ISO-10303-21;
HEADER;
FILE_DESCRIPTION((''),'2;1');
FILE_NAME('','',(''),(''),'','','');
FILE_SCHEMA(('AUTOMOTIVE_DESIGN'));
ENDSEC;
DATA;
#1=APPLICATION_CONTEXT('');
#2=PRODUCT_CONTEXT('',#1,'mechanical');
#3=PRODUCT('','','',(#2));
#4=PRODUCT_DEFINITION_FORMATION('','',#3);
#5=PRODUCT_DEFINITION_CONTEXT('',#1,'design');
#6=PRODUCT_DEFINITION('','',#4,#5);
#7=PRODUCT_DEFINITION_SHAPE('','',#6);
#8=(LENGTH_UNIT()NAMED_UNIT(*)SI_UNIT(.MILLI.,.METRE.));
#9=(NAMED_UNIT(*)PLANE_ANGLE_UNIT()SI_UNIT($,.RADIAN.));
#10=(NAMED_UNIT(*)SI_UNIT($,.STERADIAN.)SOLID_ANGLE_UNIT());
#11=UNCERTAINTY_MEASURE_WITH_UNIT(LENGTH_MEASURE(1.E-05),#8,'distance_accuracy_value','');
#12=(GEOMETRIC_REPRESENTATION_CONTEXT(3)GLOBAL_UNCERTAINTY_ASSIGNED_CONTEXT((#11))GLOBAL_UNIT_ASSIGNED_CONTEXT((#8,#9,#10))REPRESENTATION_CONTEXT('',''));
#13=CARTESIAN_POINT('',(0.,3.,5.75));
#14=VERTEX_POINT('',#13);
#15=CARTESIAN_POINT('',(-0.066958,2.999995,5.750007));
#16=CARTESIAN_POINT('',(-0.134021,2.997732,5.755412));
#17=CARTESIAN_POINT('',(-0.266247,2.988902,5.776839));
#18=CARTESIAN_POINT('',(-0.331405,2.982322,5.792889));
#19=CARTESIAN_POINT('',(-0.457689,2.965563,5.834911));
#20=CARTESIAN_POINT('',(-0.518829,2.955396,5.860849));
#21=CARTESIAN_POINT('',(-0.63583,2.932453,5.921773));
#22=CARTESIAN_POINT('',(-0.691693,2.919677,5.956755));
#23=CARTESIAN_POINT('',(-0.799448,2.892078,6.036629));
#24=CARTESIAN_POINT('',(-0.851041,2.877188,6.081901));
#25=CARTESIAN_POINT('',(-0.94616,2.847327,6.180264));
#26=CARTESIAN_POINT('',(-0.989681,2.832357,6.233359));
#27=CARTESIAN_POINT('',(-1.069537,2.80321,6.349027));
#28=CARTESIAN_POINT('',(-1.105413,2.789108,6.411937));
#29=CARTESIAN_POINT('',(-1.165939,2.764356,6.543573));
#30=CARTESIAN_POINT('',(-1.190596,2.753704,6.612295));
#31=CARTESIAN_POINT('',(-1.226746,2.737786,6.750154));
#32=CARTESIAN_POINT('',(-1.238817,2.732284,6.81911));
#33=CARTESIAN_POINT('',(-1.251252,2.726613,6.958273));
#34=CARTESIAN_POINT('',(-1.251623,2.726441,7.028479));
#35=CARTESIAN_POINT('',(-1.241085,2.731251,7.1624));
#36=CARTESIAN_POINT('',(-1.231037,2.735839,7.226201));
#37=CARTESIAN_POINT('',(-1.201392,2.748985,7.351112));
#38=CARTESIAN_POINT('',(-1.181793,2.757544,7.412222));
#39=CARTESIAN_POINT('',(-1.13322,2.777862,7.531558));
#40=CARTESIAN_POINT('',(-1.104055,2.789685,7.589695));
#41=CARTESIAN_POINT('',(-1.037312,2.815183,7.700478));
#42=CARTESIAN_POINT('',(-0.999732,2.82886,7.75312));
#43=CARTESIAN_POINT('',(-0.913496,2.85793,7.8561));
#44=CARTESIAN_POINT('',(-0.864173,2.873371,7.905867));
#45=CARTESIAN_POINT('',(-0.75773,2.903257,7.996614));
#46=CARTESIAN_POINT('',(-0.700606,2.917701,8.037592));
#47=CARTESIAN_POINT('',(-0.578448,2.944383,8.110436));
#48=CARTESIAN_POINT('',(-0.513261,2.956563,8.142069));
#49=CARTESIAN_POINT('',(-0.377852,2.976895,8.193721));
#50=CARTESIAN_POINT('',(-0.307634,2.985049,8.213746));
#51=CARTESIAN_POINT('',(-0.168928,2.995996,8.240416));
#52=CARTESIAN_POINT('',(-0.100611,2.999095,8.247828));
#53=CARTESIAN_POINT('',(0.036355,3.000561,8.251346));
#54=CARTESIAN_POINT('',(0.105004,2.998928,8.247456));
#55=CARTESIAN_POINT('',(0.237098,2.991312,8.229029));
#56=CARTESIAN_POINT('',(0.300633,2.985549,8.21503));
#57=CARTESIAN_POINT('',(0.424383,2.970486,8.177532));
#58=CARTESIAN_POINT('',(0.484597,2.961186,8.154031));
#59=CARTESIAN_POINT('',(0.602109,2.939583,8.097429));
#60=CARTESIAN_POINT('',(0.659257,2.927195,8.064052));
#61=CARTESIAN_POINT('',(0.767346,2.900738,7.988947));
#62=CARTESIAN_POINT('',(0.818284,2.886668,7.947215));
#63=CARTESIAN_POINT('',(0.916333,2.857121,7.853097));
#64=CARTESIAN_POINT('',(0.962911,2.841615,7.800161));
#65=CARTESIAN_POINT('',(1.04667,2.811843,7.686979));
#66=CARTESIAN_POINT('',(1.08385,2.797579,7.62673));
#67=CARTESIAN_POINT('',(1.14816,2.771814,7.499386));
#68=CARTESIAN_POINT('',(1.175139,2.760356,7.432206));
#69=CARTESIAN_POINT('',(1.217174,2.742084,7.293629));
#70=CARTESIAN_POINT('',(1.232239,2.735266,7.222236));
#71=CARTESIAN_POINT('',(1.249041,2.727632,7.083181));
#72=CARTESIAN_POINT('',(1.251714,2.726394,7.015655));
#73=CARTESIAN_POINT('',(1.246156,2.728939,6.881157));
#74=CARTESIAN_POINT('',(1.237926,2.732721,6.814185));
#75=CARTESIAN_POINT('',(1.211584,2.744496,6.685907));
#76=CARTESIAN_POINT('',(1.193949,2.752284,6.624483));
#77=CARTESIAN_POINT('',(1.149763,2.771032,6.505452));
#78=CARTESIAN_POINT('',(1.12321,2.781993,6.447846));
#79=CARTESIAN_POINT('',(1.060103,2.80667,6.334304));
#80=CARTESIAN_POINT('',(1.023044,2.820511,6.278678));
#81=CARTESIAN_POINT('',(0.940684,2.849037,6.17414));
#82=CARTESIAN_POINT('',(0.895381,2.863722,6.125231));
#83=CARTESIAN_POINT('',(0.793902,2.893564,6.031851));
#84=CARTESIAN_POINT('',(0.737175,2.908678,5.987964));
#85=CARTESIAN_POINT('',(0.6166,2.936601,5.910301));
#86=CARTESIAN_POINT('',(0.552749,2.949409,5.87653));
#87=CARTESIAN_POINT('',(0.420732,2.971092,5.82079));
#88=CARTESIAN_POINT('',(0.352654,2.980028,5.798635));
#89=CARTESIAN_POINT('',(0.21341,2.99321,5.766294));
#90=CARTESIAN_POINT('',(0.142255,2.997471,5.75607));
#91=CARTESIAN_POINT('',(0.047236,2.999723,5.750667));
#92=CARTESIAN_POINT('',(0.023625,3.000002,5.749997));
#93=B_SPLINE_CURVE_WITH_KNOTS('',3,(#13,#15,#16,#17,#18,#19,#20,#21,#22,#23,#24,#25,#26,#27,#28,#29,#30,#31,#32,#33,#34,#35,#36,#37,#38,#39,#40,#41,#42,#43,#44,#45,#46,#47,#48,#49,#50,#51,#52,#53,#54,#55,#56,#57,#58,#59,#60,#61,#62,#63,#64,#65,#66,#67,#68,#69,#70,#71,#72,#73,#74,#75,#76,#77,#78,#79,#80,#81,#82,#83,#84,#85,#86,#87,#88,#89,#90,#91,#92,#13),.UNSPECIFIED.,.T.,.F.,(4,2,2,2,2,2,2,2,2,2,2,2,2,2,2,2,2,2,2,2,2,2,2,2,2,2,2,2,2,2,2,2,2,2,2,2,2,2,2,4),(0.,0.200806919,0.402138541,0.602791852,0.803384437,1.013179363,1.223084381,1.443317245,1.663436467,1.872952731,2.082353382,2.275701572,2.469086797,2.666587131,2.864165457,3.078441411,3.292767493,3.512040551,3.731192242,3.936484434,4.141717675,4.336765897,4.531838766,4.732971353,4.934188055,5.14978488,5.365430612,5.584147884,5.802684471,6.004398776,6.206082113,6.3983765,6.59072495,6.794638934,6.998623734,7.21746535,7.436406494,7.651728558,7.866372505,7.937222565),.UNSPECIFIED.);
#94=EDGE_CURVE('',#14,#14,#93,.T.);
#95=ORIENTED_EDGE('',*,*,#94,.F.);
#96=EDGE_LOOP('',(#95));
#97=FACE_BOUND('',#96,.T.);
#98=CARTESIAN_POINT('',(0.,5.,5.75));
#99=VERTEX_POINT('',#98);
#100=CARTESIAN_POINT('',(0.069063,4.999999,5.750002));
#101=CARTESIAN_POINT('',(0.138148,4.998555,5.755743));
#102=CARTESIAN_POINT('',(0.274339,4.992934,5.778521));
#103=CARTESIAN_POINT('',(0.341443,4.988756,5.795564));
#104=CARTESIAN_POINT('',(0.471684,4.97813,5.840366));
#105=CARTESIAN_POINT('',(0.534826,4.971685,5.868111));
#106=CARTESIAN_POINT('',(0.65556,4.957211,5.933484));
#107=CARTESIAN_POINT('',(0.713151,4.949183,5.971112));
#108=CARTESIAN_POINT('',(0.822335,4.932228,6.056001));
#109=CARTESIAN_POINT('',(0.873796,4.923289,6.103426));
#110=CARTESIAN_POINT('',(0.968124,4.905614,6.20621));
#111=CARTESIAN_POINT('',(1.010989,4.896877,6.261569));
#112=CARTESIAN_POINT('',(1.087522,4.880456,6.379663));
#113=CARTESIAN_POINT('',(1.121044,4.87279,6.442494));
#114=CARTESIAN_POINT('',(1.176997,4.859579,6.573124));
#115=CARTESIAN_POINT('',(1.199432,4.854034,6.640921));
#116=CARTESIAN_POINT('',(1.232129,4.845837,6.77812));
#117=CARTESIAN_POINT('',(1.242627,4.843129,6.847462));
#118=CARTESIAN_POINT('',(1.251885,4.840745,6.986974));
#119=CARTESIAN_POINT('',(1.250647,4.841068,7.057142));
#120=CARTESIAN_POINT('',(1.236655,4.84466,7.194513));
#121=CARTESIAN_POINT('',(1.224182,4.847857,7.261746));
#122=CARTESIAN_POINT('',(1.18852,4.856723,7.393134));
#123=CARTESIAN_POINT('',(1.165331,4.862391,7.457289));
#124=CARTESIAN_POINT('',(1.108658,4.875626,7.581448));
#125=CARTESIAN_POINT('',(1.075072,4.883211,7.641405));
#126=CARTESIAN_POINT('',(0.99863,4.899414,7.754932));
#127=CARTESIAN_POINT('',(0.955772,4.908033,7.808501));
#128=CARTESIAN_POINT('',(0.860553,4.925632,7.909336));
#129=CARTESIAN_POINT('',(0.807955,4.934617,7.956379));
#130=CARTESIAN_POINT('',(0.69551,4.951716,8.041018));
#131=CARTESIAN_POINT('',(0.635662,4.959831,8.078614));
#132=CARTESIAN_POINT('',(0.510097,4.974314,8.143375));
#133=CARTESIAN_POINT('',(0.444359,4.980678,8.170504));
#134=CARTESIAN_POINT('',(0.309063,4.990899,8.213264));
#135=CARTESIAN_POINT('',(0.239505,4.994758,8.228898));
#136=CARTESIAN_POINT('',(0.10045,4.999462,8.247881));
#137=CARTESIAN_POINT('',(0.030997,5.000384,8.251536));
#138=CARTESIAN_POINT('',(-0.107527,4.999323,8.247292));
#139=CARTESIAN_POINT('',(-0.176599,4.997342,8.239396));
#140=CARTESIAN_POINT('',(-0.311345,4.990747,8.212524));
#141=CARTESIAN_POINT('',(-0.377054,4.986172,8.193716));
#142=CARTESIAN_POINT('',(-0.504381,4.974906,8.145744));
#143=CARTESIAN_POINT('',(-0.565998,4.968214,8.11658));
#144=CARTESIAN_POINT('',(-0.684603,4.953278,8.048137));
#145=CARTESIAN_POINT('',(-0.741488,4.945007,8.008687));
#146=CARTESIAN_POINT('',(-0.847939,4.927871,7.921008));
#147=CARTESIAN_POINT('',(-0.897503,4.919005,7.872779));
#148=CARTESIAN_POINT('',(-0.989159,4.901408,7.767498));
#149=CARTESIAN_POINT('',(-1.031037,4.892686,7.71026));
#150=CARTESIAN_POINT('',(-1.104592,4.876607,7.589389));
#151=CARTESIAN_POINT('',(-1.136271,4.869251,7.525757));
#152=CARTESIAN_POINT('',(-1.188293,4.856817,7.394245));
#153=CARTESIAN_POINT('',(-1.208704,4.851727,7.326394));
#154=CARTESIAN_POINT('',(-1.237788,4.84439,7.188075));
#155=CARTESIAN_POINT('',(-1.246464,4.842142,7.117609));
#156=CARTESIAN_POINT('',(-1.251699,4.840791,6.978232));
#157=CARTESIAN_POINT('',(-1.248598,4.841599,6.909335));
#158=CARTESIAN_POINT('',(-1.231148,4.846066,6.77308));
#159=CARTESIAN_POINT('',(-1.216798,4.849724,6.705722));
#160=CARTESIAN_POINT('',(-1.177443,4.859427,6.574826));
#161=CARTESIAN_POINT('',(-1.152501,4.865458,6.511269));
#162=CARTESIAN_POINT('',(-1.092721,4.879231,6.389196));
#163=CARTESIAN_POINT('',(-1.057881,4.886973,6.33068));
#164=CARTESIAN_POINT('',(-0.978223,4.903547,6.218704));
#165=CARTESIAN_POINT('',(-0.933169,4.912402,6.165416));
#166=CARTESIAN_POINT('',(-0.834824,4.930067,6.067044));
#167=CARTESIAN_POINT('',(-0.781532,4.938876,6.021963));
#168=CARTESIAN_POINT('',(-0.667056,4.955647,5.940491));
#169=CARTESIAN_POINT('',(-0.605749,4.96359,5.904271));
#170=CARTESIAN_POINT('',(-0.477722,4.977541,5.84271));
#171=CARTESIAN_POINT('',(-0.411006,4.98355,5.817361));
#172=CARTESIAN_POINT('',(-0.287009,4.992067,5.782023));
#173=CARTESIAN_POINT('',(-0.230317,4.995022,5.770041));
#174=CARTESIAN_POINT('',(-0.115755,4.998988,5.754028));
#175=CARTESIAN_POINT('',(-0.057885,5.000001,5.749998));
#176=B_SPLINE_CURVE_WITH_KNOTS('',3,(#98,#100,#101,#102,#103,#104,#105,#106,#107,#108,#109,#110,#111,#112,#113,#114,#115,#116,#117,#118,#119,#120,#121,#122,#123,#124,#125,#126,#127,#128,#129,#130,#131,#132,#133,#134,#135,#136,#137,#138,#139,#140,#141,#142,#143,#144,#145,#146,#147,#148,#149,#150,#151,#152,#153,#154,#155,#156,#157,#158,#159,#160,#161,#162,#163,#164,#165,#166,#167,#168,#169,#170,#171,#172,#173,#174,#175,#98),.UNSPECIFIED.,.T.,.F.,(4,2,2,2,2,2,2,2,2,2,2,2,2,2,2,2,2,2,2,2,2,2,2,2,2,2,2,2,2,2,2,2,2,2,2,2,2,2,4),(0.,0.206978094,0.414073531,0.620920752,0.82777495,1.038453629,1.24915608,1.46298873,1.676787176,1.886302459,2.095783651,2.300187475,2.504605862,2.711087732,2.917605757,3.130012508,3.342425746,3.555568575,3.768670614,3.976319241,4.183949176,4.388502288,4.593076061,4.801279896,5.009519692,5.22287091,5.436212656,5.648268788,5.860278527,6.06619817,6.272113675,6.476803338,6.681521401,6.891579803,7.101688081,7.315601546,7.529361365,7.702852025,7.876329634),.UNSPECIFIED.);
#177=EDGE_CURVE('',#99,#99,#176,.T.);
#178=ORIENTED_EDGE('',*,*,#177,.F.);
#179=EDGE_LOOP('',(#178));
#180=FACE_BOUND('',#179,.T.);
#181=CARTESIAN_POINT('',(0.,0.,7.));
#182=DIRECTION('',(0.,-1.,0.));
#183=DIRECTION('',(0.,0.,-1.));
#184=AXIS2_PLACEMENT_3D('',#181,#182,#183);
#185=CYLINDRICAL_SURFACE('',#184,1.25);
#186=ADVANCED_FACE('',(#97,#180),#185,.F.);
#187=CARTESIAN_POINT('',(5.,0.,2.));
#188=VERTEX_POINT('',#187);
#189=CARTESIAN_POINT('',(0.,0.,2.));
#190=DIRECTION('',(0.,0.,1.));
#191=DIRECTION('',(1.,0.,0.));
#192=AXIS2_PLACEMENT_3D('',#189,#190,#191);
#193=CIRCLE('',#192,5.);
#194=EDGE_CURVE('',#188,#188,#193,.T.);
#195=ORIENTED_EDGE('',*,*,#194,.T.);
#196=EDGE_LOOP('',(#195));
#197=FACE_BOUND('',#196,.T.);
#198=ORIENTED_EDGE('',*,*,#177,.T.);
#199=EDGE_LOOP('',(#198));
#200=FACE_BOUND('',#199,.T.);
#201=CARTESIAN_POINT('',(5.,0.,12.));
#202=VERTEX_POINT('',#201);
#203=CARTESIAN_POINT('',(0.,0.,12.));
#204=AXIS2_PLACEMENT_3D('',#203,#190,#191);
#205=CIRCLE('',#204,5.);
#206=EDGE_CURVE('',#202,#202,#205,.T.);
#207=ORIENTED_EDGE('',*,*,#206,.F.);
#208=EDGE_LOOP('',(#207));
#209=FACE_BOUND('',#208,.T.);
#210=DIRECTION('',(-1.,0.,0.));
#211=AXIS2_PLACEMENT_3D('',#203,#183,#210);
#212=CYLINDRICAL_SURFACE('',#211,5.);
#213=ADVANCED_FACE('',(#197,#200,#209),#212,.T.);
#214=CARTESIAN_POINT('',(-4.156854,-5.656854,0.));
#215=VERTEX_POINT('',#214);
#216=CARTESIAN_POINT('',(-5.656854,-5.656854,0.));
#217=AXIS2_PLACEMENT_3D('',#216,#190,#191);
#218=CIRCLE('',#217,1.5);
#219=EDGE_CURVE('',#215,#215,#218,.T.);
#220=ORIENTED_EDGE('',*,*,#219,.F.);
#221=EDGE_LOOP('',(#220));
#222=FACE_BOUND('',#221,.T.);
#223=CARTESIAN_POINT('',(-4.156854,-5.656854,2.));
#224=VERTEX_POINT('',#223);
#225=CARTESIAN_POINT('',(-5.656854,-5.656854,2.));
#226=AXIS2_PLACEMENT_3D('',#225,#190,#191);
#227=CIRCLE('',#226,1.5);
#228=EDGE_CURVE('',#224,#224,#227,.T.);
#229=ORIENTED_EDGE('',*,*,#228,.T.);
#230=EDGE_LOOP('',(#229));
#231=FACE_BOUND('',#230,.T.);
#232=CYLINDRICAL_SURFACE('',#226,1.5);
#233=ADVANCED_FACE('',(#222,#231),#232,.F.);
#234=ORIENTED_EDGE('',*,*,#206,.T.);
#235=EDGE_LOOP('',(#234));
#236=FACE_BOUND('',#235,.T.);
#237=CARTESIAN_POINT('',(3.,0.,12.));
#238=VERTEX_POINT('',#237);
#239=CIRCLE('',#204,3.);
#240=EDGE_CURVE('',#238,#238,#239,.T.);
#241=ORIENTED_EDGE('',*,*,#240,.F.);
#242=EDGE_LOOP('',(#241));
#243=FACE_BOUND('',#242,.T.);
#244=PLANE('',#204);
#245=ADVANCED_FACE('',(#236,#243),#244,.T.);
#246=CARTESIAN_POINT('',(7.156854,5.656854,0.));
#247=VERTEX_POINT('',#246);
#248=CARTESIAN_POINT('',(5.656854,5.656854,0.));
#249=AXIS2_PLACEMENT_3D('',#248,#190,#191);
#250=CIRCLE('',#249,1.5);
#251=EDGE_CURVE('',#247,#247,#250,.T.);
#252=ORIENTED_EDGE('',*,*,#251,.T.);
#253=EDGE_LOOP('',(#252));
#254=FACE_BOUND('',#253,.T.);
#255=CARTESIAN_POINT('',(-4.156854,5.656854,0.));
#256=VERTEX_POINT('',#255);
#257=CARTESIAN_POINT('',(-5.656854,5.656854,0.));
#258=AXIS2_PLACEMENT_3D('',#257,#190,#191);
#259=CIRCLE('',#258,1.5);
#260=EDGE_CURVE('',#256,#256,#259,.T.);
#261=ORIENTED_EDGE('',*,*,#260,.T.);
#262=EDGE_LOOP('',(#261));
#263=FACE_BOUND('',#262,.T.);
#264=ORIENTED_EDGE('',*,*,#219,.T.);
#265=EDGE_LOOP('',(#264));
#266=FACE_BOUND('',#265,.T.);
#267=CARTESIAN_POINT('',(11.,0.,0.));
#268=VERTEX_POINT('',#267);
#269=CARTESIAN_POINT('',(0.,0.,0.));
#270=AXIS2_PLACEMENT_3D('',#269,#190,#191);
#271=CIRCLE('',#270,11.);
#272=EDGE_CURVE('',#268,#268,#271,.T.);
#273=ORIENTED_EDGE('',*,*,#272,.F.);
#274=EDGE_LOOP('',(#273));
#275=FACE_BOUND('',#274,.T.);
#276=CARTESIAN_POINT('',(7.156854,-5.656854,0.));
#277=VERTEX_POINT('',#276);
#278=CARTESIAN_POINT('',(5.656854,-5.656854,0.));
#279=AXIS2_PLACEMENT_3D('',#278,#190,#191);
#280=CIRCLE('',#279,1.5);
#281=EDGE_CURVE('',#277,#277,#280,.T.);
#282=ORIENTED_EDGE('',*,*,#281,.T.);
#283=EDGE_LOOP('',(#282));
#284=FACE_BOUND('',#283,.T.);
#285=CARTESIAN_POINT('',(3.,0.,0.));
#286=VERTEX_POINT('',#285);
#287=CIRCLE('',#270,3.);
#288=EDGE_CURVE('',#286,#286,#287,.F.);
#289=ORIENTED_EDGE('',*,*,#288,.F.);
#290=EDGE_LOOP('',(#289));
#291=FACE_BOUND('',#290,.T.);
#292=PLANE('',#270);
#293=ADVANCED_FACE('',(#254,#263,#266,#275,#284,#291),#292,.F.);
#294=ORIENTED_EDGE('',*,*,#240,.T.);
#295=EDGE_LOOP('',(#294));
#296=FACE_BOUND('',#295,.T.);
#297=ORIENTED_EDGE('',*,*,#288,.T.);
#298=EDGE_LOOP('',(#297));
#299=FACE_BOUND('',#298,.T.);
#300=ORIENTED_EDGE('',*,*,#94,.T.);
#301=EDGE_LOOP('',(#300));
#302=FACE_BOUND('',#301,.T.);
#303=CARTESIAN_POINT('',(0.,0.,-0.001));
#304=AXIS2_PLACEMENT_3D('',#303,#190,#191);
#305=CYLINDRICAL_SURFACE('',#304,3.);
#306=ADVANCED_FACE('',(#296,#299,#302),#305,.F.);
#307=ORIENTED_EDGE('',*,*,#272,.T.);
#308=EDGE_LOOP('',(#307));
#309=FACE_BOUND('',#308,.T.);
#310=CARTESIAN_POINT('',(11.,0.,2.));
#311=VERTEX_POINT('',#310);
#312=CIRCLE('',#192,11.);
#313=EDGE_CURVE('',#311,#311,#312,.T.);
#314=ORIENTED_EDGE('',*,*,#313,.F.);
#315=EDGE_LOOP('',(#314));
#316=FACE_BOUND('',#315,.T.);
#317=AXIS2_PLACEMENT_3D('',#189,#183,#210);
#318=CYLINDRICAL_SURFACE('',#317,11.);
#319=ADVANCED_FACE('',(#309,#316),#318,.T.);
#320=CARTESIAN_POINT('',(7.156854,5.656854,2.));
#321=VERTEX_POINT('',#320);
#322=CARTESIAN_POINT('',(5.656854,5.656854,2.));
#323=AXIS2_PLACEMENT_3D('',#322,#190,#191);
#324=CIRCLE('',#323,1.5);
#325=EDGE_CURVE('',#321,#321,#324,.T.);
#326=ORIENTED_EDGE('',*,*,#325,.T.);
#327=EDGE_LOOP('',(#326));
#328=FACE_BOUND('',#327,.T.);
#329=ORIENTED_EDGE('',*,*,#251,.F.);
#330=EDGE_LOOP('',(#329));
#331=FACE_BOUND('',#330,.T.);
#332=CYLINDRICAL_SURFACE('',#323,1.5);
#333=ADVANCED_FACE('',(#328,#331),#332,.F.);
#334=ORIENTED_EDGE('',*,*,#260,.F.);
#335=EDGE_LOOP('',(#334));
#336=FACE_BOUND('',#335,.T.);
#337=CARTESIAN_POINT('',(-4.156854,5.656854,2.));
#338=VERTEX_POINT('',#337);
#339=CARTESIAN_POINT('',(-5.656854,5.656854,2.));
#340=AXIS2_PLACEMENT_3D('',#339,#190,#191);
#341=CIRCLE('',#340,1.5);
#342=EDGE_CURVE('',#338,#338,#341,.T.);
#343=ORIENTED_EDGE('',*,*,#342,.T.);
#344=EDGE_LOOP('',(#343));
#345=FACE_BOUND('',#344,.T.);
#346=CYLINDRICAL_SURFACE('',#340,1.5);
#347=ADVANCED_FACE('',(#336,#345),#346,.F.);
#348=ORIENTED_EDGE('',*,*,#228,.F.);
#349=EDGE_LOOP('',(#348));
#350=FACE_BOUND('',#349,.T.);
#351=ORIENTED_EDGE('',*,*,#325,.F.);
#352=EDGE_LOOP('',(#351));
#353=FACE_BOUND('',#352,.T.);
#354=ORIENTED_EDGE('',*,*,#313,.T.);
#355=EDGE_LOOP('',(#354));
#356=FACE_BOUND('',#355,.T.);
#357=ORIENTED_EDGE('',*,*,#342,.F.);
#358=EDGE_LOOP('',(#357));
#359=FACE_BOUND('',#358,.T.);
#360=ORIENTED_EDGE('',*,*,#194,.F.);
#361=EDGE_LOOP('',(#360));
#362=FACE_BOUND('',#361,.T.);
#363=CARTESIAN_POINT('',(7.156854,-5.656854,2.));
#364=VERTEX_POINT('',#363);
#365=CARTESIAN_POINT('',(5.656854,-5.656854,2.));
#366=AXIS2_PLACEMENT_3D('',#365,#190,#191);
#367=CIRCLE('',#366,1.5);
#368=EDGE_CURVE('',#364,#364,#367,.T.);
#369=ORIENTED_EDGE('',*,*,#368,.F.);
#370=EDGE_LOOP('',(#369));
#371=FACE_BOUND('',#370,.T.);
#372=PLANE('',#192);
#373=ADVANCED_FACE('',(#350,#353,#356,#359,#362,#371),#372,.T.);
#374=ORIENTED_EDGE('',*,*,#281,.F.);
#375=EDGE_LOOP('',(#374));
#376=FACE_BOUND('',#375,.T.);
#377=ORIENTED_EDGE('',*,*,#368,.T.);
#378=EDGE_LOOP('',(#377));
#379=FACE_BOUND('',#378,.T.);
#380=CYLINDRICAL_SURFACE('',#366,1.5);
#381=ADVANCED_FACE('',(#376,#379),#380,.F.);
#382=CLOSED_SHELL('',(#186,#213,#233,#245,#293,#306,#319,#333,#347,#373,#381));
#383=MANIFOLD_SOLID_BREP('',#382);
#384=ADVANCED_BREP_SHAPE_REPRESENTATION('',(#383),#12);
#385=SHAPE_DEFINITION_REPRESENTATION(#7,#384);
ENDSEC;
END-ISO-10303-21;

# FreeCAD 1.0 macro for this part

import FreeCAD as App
import Part
import Sketcher

V = App.Vector
Q = App.Units.Quantity

doc = App.newDocument("Part")
body = doc.addObject("PartDesign::Body", "Body")

# Sketch on XY plane
sketch1 = body.newObject("Sketcher::SketchObject", "Sketch")
sketch1.AttachmentSupport = (doc.getObject("XY_Plane"), [""])
sketch1.MapMode = "FlatFace"
sketch1.addGeometry(Part.Circle(V(0, 0, 0), V(0, 0, 1), 11), False)
sketch1.addConstraint([
    Sketcher.Constraint("Coincident", 0, 3, -1, 1),
    Sketcher.Constraint("Diameter", 0, Q("22 mm")),
])
pad1 = body.newObject("PartDesign::Pad", "Pad")
pad1.Profile = sketch1
pad1.Length = 2

# Sketch on XY plane
sketch2 = body.newObject("Sketcher::SketchObject", "Sketch001")
sketch2.AttachmentSupport = (doc.getObject("XY_Plane"), [""])
sketch2.MapMode = "FlatFace"
sketch2.AttachmentOffset = App.Placement(V(0, 0, 2), App.Rotation())
sketch2.addGeometry(Part.Circle(V(0, 0, 0), V(0, 0, 1), 5), False)
sketch2.addConstraint([
    Sketcher.Constraint("Coincident", 0, 3, -1, 1),
    Sketcher.Constraint("Diameter", 0, Q("10 mm")),
])
pad2 = body.newObject("PartDesign::Pad", "Pad001")
pad2.Profile = sketch2
pad2.Length = 10

# Sketch on XY plane
sketch3 = body.newObject("Sketcher::SketchObject", "Sketch002")
sketch3.AttachmentSupport = (doc.getObject("XY_Plane"), [""])
sketch3.MapMode = "FlatFace"
sketch3.AttachmentOffset = App.Placement(V(0, 0, 12), App.Rotation())
sketch3.addGeometry(Part.Circle(V(0, 0, 0), V(0, 0, 1), 3), False)
sketch3.addConstraint([
    Sketcher.Constraint("Coincident", 0, 3, -1, 1),
    Sketcher.Constraint("Diameter", 0, Q("6 mm")),
])
pocket1 = body.newObject("PartDesign::Pocket", "Pocket")
pocket1.Profile = sketch3
pocket1.Type = "UpToFirst"

# Sketch on YZ plane
sketch4 = body.newObject("Sketcher::SketchObject", "Sketch003")
sketch4.AttachmentSupport = (doc.getObject("YZ_Plane"), [""])
sketch4.MapMode = "FlatFace"
sketch4.addGeometry([
    Part.LineSegment(V(5, 7, 0), V(0, 7, 0)),
    Part.LineSegment(V(0, 7, 0), V(0, 5.8, 0)),
    Part.LineSegment(V(0, 5.8, 0), V(5, 5.8, 0)),
    Part.LineSegment(V(5, 5.8, 0), V(5, 7, 0)),
], False)
sketch4.addGeometry(Part.LineSegment(V(0, 7, 0), V(5, 7, 0)), True)  # axis
sketch4.addConstraint([
    Sketcher.Constraint("Coincident", 0, 2, 1, 1),
    Sketcher.Constraint("Coincident", 1, 2, 2, 1),
    Sketcher.Constraint("Coincident", 2, 2, 3, 1),
    Sketcher.Constraint("Coincident", 3, 2, 0, 1),
    Sketcher.Constraint("Horizontal", 0),
    Sketcher.Constraint("Vertical", 1),
    Sketcher.Constraint("Horizontal", 2),
    Sketcher.Constraint("Vertical", 3),
    Sketcher.Constraint("Horizontal", 4),
    Sketcher.Constraint("Coincident", 4, 1, 0, 2),
    Sketcher.Constraint("PointOnObject", 0, 2, -2),
    Sketcher.Constraint("Vertical", 2, 2, 4, 2),
    Sketcher.Constraint("DistanceX", 0, 2, 0, 1, Q("5 mm")),
    Sketcher.Constraint("DistanceY", -1, 1, 0, 2, Q("7 mm")),
    Sketcher.Constraint("DistanceY", 1, 2, 1, 1, Q("1.25 mm")),
])
groove = body.newObject("PartDesign::Groove", "Groove")
groove.Profile = sketch4
groove.ReferenceAxis = (sketch4, ["Axis0"])
groove.Angle = 360

# Sketch on XY plane
sketch5 = body.newObject("Sketcher::SketchObject", "Sketch004")
sketch5.AttachmentSupport = (doc.getObject("XY_Plane"), [""])
sketch5.MapMode = "FlatFace"
sketch5.AttachmentOffset = App.Placement(V(0, 0, 2), App.Rotation())
sketch5.addGeometry([
    Part.Circle(V(5.7, 5.7, 0), V(0, 0, 1), 1.5),
    Part.Circle(V(-5.7, -5.7, 0), V(0, 0, 1), 1.5),
    Part.Circle(V(-5.7, 5.7, 0), V(0, 0, 1), 1.5),
    Part.Circle(V(5.7, -5.7, 0), V(0, 0, 1), 1.5),
], False)
sketch5.addConstraint([
    Sketcher.Constraint("Equal", 0, 1),
    Sketcher.Constraint("Equal", 1, 2),
    Sketcher.Constraint("Equal", 2, 3),
    Sketcher.Constraint("Symmetric", 0, 3, 1, 3, -1, 1),
    Sketcher.Constraint("Symmetric", 2, 3, 3, 3, -1, 1),
    Sketcher.Constraint("Symmetric", 0, 3, 2, 3, -2),
    Sketcher.Constraint("Diameter", 0, Q("3 mm")),
    Sketcher.Constraint("DistanceX", 1, 3, 0, 3, Q("11.313708 mm")),
    Sketcher.Constraint("DistanceY", 1, 3, 0, 3, Q("11.313708 mm")),
])
doc.recompute()
hole = body.newObject("PartDesign::Hole", "Hole")
hole.Profile = sketch5
hole.ThreadType = "None"
hole.Diameter = 3
hole.DepthType = "ThroughAll"

doc.recompute()
